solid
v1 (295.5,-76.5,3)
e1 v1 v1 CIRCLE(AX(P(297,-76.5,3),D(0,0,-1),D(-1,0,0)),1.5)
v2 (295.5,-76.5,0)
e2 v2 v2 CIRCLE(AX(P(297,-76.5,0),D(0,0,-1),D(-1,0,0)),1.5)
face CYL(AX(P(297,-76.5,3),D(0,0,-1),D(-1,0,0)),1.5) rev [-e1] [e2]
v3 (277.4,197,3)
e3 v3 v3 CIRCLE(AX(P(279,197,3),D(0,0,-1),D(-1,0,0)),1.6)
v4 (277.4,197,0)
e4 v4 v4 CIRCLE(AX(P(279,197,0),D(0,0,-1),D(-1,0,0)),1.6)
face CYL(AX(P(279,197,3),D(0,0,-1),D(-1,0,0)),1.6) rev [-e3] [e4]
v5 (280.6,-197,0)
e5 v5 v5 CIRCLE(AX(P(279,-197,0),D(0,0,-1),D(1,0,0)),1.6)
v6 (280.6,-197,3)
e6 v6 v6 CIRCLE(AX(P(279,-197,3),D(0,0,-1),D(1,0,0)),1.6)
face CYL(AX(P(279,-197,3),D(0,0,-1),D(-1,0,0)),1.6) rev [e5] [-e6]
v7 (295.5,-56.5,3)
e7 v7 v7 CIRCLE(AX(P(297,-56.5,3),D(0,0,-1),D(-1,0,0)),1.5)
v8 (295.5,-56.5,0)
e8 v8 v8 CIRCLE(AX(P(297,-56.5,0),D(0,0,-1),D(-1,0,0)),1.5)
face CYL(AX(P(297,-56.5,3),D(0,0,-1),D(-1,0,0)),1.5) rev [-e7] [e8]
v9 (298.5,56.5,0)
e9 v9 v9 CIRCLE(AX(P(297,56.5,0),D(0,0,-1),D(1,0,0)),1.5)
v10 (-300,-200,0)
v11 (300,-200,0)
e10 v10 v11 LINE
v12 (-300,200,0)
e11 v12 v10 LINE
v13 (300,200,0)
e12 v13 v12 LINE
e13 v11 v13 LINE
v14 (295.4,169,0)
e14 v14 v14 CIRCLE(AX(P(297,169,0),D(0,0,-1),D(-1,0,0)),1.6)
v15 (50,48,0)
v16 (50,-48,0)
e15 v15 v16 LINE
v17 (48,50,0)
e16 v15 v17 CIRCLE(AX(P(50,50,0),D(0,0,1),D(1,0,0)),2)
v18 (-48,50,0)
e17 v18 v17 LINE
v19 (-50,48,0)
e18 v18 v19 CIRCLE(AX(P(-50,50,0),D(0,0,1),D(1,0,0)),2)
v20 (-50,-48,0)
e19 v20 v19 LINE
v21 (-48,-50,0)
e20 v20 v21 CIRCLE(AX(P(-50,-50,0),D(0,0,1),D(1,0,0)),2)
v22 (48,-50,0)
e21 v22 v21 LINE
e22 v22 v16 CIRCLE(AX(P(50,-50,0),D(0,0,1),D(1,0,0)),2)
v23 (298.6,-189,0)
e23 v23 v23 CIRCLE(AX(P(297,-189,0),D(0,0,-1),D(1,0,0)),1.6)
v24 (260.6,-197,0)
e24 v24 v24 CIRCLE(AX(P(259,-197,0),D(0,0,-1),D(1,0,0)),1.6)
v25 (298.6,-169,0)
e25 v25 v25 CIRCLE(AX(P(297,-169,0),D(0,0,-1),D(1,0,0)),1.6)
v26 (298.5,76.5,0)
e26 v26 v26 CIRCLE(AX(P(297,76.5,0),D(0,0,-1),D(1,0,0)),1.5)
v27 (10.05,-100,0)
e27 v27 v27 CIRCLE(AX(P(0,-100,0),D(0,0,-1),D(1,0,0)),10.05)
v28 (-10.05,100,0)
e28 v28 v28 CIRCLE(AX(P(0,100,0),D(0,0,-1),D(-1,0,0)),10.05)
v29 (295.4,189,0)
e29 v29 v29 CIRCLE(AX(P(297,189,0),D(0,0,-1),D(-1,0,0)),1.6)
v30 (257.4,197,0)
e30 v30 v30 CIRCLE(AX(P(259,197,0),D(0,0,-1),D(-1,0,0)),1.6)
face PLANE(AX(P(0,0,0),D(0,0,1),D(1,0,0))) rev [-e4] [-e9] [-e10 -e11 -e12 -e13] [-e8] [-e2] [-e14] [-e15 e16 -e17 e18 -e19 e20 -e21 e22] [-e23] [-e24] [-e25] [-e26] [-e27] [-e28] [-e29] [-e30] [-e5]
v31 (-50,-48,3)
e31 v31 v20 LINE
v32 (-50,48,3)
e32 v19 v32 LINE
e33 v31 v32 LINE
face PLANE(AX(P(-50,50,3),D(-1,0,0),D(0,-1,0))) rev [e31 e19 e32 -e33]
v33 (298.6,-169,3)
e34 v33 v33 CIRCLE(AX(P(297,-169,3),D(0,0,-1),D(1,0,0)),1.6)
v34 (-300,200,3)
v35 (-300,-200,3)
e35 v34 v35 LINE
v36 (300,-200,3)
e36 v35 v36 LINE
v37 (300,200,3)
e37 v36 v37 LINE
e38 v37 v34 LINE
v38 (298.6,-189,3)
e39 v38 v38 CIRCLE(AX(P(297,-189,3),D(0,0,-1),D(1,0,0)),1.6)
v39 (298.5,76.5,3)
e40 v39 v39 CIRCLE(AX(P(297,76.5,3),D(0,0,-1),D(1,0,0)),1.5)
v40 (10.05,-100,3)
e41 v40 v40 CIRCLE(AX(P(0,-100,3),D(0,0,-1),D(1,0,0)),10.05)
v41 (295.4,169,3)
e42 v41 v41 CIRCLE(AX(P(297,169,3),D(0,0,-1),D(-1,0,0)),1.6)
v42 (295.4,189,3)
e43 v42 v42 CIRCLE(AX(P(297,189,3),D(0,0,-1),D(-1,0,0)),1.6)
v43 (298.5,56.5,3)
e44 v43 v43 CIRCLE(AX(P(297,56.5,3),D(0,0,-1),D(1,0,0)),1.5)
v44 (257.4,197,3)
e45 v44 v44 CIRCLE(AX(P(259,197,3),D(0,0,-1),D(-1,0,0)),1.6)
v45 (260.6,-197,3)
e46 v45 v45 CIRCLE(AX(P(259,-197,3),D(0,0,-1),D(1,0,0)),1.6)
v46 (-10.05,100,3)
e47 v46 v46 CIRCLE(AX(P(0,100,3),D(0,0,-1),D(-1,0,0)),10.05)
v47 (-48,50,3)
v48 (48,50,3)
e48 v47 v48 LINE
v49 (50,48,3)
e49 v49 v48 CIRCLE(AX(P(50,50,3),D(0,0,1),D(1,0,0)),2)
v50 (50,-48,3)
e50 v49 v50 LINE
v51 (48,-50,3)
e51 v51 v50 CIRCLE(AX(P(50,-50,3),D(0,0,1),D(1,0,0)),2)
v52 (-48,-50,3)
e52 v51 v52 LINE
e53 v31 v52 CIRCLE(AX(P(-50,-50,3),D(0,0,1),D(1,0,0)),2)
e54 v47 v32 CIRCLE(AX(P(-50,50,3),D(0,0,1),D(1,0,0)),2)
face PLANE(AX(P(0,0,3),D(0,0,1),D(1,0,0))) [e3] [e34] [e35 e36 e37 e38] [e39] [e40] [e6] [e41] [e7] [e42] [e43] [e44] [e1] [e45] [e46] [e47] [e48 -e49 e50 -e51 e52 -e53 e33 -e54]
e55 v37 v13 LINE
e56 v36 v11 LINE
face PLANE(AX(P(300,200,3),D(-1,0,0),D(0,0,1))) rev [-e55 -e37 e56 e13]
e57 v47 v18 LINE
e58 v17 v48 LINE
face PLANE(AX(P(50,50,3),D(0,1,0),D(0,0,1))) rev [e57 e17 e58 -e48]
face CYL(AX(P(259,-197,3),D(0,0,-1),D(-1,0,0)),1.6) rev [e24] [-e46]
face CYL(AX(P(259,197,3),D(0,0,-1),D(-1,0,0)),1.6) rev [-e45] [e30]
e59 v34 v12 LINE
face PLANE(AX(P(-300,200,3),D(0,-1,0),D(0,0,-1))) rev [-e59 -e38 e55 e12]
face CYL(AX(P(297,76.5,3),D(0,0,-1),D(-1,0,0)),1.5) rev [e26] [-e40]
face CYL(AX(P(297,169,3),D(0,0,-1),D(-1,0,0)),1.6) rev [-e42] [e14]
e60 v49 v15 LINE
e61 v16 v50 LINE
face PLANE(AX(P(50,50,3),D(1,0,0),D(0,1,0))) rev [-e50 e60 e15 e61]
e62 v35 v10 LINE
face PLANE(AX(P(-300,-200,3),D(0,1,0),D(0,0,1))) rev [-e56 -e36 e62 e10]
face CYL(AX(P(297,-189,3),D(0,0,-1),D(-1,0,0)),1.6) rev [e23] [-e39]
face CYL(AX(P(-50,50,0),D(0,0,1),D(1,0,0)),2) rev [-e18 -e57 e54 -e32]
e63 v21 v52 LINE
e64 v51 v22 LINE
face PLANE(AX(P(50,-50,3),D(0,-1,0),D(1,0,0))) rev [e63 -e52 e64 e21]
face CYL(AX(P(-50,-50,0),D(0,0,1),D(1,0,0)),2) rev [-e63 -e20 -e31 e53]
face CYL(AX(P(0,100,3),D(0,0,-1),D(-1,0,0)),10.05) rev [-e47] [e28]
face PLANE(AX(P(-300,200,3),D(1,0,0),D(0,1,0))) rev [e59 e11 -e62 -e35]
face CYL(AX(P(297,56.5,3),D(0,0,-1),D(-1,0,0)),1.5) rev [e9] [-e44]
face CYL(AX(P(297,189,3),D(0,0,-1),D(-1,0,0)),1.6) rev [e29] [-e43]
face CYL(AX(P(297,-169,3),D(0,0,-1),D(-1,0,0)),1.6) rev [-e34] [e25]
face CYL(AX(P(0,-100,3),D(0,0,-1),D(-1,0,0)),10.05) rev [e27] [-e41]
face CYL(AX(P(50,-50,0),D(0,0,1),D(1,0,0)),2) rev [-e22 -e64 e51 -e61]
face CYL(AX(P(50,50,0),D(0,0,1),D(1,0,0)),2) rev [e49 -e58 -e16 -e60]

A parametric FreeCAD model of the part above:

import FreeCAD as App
import Part
import Sketcher

V = App.Vector
Q = App.Units.Quantity


def add_polygon(sketch, points):
    """Adds a closed chain of lines whose ends are joined by coincident constraints."""
    first, n = sketch.GeometryCount, len(points)
    for a, b in zip(points, points[1:] + points[:1]):
        sketch.addGeometry(Part.LineSegment(App.Vector(*a, 0), App.Vector(*b, 0)), False)
    for i in range(n):
        sketch.addConstraint(Sketcher.Constraint("Coincident", first + i, 2, first + (i + 1) % n, 1))

doc = App.newDocument("Part")
params = doc.addObject("Spreadsheet::Sheet", "Params")
for row, (alias, value) in enumerate([
    ("sketch1_width", "600 mm"),
    ("sketch1_height", "400 mm"),
    ("pad1_length", "3 mm"),
    ("sketch2_width", "100 mm"),
    ("sketch3_diameter", "4 mm"),
    ("sketch4_diameter", "3.2 mm"),
    ("sketch5_diameter", "20.1 mm"),
    ("sketch6_diameter", "3 mm"),
], start=1):
    params.set(f"A{row}", alias)
    params.set(f"B{row}", "=" + value)
    params.setAlias(f"B{row}", alias)

body = doc.addObject("PartDesign::Body", "Body")

# Sketch on XY plane
sketch1 = doc.addObject("Sketcher::SketchObject", "Sketch")
body.addObject(sketch1)
sketch1.AttachmentSupport = (doc.XY_Plane, [""])
sketch1.MapMode = "FlatFace"
add_polygon(sketch1, [(-300, 200), (-300, -200), (300, -200), (300, 200)])  # lines 0-3
sketch1.addConstraint(Sketcher.Constraint("Vertical", 0))
sketch1.addConstraint(Sketcher.Constraint("Horizontal", 1))
sketch1.addConstraint(Sketcher.Constraint("Vertical", 2))
sketch1.addConstraint(Sketcher.Constraint("Horizontal", 3))
sketch1.addConstraint(Sketcher.Constraint("Symmetric", 0, 2, 2, 2, -1, 1))
sketch1.addConstraint(Sketcher.Constraint("DistanceX", 1, 1, 1, 2, Q("600 mm")))
sketch1.addConstraint(Sketcher.Constraint("DistanceY", 0, 2, 0, 1, Q("400 mm")))
sketch1.setExpression("Constraints[9]", "Params.sketch1_width")
sketch1.setExpression("Constraints[10]", "Params.sketch1_height")
pad1 = doc.addObject("PartDesign::Pad", "Pad")
body.addObject(pad1)
pad1.Profile = sketch1
pad1.setExpression("Length", "Params.pad1_length")

# Sketch on XY plane
sketch2 = doc.addObject("Sketcher::SketchObject", "Sketch001")
body.addObject(sketch2)
sketch2.AttachmentSupport = (doc.XY_Plane, [""])
sketch2.MapMode = "FlatFace"
add_polygon(sketch2, [(50, 50), (50, -50), (-50, -50), (-50, 50)])  # lines 0-3
sketch2.addConstraint(Sketcher.Constraint("Vertical", 0))
sketch2.addConstraint(Sketcher.Constraint("Horizontal", 1))
sketch2.addConstraint(Sketcher.Constraint("Vertical", 2))
sketch2.addConstraint(Sketcher.Constraint("Horizontal", 3))
sketch2.addConstraint(Sketcher.Constraint("Symmetric", 0, 2, 2, 2, -1, 1))
sketch2.addConstraint(Sketcher.Constraint("Equal", 3, 0))
sketch2.addConstraint(Sketcher.Constraint("DistanceX", 1, 2, 1, 1, Q("100 mm")))
sketch2.setExpression("Constraints[10]", "Params.sketch2_width")
pocket1 = doc.addObject("PartDesign::Pocket", "Pocket")
body.addObject(pocket1)
pocket1.Profile = sketch2
pocket1.Type = "ThroughAll"
pocket1.Reversed = True

# Sketch on XY plane
sketch3 = doc.addObject("Sketcher::SketchObject", "Sketch002")
body.addObject(sketch3)
sketch3.AttachmentSupport = (doc.XY_Plane, [""])
sketch3.MapMode = "FlatFace"
sketch3.AttachmentOffset = App.Placement(V(0, 0, 3), App.Rotation())
sketch3.addGeometry(Part.Circle(V(-50, 50, 0), V(0, 0, 1), 2), False)
sketch3.addGeometry(Part.Circle(V(-50, -50, 0), V(0, 0, 1), 2), False)
sketch3.addGeometry(Part.Circle(V(50, -50, 0), V(0, 0, 1), 2), False)
sketch3.addGeometry(Part.Circle(V(50, 50, 0), V(0, 0, 1), 2), False)
sketch3.addConstraint(Sketcher.Constraint("Equal", 0, 1))
sketch3.addConstraint(Sketcher.Constraint("Equal", 1, 2))
sketch3.addConstraint(Sketcher.Constraint("Equal", 2, 3))
sketch3.addConstraint(Sketcher.Constraint("Symmetric", 0, 3, 2, 3, -1, 1))
sketch3.addConstraint(Sketcher.Constraint("Symmetric", 1, 3, 3, 3, -1, 1))
sketch3.addConstraint(Sketcher.Constraint("Symmetric", 1, 3, 2, 3, -2))
sketch3.addConstraint(Sketcher.Constraint("Diameter", 0, Q("4 mm")))
sketch3.addConstraint(Sketcher.Constraint("DistanceX", 0, 3, -1, 1, Q("50 mm")))
sketch3.addConstraint(Sketcher.Constraint("DistanceY", -1, 1, 0, 3, Q("50 mm")))
sketch3.setExpression("Constraints[6]", "Params.sketch3_diameter")
pocket2 = doc.addObject("PartDesign::Pocket", "Pocket001")
body.addObject(pocket2)
pocket2.Profile = sketch3
pocket2.Type = "ThroughAll"

# Sketch on XY plane
sketch4 = doc.addObject("Sketcher::SketchObject", "Sketch003")
body.addObject(sketch4)
sketch4.AttachmentSupport = (doc.XY_Plane, [""])
sketch4.MapMode = "FlatFace"
sketch4.addGeometry(Part.Circle(V(297, 169, 0), V(0, 0, 1), 1.6), False)
sketch4.addGeometry(Part.Circle(V(297, 189, 0), V(0, 0, 1), 1.6), False)
sketch4.addGeometry(Part.Circle(V(279, 197, 0), V(0, 0, 1), 1.6), False)
sketch4.addGeometry(Part.Circle(V(259, 197, 0), V(0, 0, 1), 1.6), False)
sketch4.addGeometry(Part.Circle(V(259, -197, 0), V(0, 0, 1), 1.6), False)
sketch4.addGeometry(Part.Circle(V(279, -197, 0), V(0, 0, 1), 1.6), False)
sketch4.addGeometry(Part.Circle(V(297, -189, 0), V(0, 0, 1), 1.6), False)
sketch4.addGeometry(Part.Circle(V(297, -169, 0), V(0, 0, 1), 1.6), False)
sketch4.addConstraint(Sketcher.Constraint("Equal", 0, 1))
sketch4.addConstraint(Sketcher.Constraint("Equal", 1, 2))
sketch4.addConstraint(Sketcher.Constraint("Equal", 2, 3))
sketch4.addConstraint(Sketcher.Constraint("Equal", 3, 4))
sketch4.addConstraint(Sketcher.Constraint("Equal", 4, 5))
sketch4.addConstraint(Sketcher.Constraint("Equal", 5, 6))
sketch4.addConstraint(Sketcher.Constraint("Equal", 6, 7))
sketch4.addConstraint(Sketcher.Constraint("Symmetric", 3, 3, 4, 3, -1))
sketch4.addConstraint(Sketcher.Constraint("Symmetric", 2, 3, 5, 3, -1))
sketch4.addConstraint(Sketcher.Constraint("Symmetric", 1, 3, 6, 3, -1))
sketch4.addConstraint(Sketcher.Constraint("Symmetric", 0, 3, 7, 3, -1))
sketch4.addConstraint(Sketcher.Constraint("Horizontal", 2, 3, 3, 3))
sketch4.addConstraint(Sketcher.Constraint("Vertical", 0, 3, 1, 3))
sketch4.addConstraint(Sketcher.Constraint("Diameter", 0, Q("3.2 mm")))
sketch4.addConstraint(Sketcher.Constraint("DistanceX", -1, 1, 0, 3, Q("297 mm")))
sketch4.addConstraint(Sketcher.Constraint("DistanceY", -1, 1, 0, 3, Q("169 mm")))
sketch4.addConstraint(Sketcher.Constraint("DistanceY", -1, 1, 1, 3, Q("189 mm")))
sketch4.addConstraint(Sketcher.Constraint("DistanceX", -1, 1, 2, 3, Q("279 mm")))
sketch4.addConstraint(Sketcher.Constraint("DistanceY", -1, 1, 2, 3, Q("197 mm")))
sketch4.addConstraint(Sketcher.Constraint("DistanceX", -1, 1, 3, 3, Q("259 mm")))
sketch4.setExpression("Constraints[13]", "Params.sketch4_diameter")
pocket3 = doc.addObject("PartDesign::Pocket", "Pocket002")
body.addObject(pocket3)
pocket3.Profile = sketch4
pocket3.Type = "ThroughAll"
pocket3.Reversed = True

# Sketch on XY plane
sketch5 = doc.addObject("Sketcher::SketchObject", "Sketch004")
body.addObject(sketch5)
sketch5.AttachmentSupport = (doc.XY_Plane, [""])
sketch5.MapMode = "FlatFace"
sketch5.addGeometry(Part.Circle(V(0, 100, 0), V(0, 0, 1), 10), False)
sketch5.addGeometry(Part.Circle(V(0, -100, 0), V(0, 0, 1), 10), False)
sketch5.addConstraint(Sketcher.Constraint("Equal", 0, 1))
sketch5.addConstraint(Sketcher.Constraint("Symmetric", 0, 3, 1, 3, -1, 1))
sketch5.addConstraint(Sketcher.Constraint("PointOnObject", 0, 3, -2))
sketch5.addConstraint(Sketcher.Constraint("Diameter", 0, Q("20.1 mm")))
sketch5.addConstraint(Sketcher.Constraint("DistanceY", -1, 1, 0, 3, Q("100 mm")))
sketch5.setExpression("Constraints[3]", "Params.sketch5_diameter")
pocket4 = doc.addObject("PartDesign::Pocket", "Pocket003")
body.addObject(pocket4)
pocket4.Profile = sketch5
pocket4.Type = "ThroughAll"
pocket4.Reversed = True

# Sketch on XY plane
sketch6 = doc.addObject("Sketcher::SketchObject", "Sketch005")
body.addObject(sketch6)
sketch6.AttachmentSupport = (doc.XY_Plane, [""])
sketch6.MapMode = "FlatFace"
sketch6.addGeometry(Part.Circle(V(297, -56.5, 0), V(0, 0, 1), 1.5), False)
sketch6.addGeometry(Part.Circle(V(297, -76.5, 0), V(0, 0, 1), 1.5), False)
sketch6.addGeometry(Part.Circle(V(297, 76.5, 0), V(0, 0, 1), 1.5), False)
sketch6.addGeometry(Part.Circle(V(297, 56.5, 0), V(0, 0, 1), 1.5), False)
sketch6.addConstraint(Sketcher.Constraint("Equal", 0, 1))
sketch6.addConstraint(Sketcher.Constraint("Equal", 1, 2))
sketch6.addConstraint(Sketcher.Constraint("Equal", 2, 3))
sketch6.addConstraint(Sketcher.Constraint("Symmetric", 1, 3, 2, 3, -1))
sketch6.addConstraint(Sketcher.Constraint("Symmetric", 0, 3, 3, 3, -1))
sketch6.addConstraint(Sketcher.Constraint("Vertical", 0, 3, 1, 3))
sketch6.addConstraint(Sketcher.Constraint("Diameter", 0, Q("3 mm")))
sketch6.addConstraint(Sketcher.Constraint("DistanceX", -1, 1, 0, 3, Q("297 mm")))
sketch6.addConstraint(Sketcher.Constraint("DistanceY", 1, 3, 0, 3, Q("20 mm")))
sketch6.addConstraint(Sketcher.Constraint("DistanceY", 0, 3, 2, 3, Q("133 mm")))
sketch6.setExpression("Constraints[6]", "Params.sketch6_diameter")
pocket5 = doc.addObject("PartDesign::Pocket", "Pocket004")
body.addObject(pocket5)
pocket5.Profile = sketch6
pocket5.Type = "ThroughAll"
pocket5.Reversed = True

doc.recompute()
